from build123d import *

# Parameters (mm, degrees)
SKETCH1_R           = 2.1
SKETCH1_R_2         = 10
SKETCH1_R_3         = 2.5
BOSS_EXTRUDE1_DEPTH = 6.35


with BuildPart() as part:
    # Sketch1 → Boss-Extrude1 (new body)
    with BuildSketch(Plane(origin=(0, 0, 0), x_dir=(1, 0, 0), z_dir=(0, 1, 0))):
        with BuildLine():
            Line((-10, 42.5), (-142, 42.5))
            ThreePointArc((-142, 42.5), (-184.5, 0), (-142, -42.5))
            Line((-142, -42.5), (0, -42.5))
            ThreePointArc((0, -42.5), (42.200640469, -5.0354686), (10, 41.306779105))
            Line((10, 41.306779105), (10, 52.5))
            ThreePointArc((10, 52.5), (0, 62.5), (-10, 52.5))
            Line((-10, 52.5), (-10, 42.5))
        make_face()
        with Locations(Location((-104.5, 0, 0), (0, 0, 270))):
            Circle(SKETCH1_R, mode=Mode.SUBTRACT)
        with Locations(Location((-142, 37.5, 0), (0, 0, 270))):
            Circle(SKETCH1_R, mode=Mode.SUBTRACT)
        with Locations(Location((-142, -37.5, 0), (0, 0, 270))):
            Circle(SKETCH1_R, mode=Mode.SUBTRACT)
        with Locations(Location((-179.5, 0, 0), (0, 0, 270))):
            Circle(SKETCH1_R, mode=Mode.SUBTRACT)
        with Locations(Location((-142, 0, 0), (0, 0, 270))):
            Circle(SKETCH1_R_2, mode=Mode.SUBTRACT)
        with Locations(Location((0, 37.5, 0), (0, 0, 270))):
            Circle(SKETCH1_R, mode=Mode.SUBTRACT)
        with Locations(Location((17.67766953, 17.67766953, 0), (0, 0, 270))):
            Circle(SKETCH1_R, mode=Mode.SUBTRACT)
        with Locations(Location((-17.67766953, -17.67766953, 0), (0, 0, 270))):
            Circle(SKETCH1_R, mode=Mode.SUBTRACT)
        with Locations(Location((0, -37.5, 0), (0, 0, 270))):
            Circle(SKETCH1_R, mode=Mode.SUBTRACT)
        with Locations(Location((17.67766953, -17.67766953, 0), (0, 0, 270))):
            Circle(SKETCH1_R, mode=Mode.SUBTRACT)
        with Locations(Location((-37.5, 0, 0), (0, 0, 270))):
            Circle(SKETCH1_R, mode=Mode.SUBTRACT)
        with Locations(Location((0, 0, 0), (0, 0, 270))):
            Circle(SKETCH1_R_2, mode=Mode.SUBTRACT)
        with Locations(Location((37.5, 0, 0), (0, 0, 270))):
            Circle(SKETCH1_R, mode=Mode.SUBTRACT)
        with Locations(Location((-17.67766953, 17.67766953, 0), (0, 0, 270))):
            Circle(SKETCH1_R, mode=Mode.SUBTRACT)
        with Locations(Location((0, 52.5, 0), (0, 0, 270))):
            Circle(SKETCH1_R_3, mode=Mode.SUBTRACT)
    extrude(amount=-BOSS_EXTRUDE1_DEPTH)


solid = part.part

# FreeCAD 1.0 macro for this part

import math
import FreeCAD as App
import Part
import Sketcher

V = App.Vector

doc = App.newDocument("Part")
body = doc.addObject("PartDesign::Body", "Body")

sketch1 = doc.addObject("Sketcher::SketchObject", "Sketch")
body.addObject(sketch1)
sketch1.AttachmentSupport = (doc.XZ_Plane, [""])
sketch1.MapMode = "FlatFace"
sketch1.addGeometry([
    Part.LineSegment(V(-10, -42.5, 0), V(-142, -42.5, 0)),
    Part.ArcOfCircle(Part.Circle(V(-142, 0, 0), V(0, 0, 1), 42.5), math.radians(90), math.radians(270)),
    Part.LineSegment(V(-142, 42.5, 0), V(0, 42.5, 0)),
    Part.ArcOfCircle(Part.Circle(V(0, 0, 0), V(0, 0, 1), 42.5), math.radians(-76), math.radians(90)),
    Part.LineSegment(V(10, -41.3, 0), V(10, -52.5, 0)),
    Part.ArcOfCircle(Part.Circle(V(0, -52.5, 0), V(0, 0, 1), 10), math.radians(180), math.radians(360)),
    Part.LineSegment(V(-10, -52.5, 0), V(-10, -42.5, 0)),
    Part.Circle(V(-142, 37.5, 0), V(0, 0, 1), 2.1),
    Part.Circle(V(-179.5, 0, 0), V(0, 0, 1), 2.1),
    Part.Circle(V(-142, 0, 0), V(0, 0, 1), 10),
    Part.Circle(V(-104.5, 0, 0), V(0, 0, 1), 2.1),
    Part.Circle(V(-17.7, 17.7, 0), V(0, 0, 1), 2.1),
    Part.Circle(V(0, 37.5, 0), V(0, 0, 1), 2.1),
    Part.Circle(V(17.7, 17.7, 0), V(0, 0, 1), 2.1),
    Part.Circle(V(-37.5, 0, 0), V(0, 0, 1), 2.1),
    Part.Circle(V(0, 0, 0), V(0, 0, 1), 10),
    Part.Circle(V(37.5, 0, 0), V(0, 0, 1), 2.1),
    Part.Circle(V(-142, -37.5, 0), V(0, 0, 1), 2.1),
    Part.Circle(V(-17.7, -17.7, 0), V(0, 0, 1), 2.1),
    Part.Circle(V(17.7, -17.7, 0), V(0, 0, 1), 2.1),
    Part.Circle(V(0, -37.5, 0), V(0, 0, 1), 2.1),
    Part.Circle(V(0, -52.5, 0), V(0, 0, 1), 2.5),
], False)
sketch1.addConstraint([
    Sketcher.Constraint("Tangent", 0, 2, 1, 2),
    Sketcher.Constraint("Tangent", 1, 1, 2, 1),
    Sketcher.Constraint("Tangent", 2, 2, 3, 2),
    Sketcher.Constraint("Coincident", 3, 1, 4, 1),
    Sketcher.Constraint("Tangent", 4, 2, 5, 2),
    Sketcher.Constraint("Tangent", 5, 1, 6, 1),
    Sketcher.Constraint("Coincident", 6, 2, 0, 1),
    Sketcher.Constraint("Horizontal", 0),
    Sketcher.Constraint("Horizontal", 2),
    Sketcher.Constraint("Vertical", 4),
    Sketcher.Constraint("Vertical", 6),
    Sketcher.Constraint("Coincident", 3, 3, -1, 1),
    Sketcher.Constraint("Coincident", 15, 3, -1, 1),
    Sketcher.Constraint("Coincident", 9, 3, 1, 3),
    Sketcher.Constraint("Coincident", 21, 3, 5, 3),
    Sketcher.Constraint("Equal", 1, 3),
    Sketcher.Constraint("Equal", 7, 8),
    Sketcher.Constraint("Equal", 5, 9),
    Sketcher.Constraint("Equal", 8, 10),
    Sketcher.Constraint("Equal", 10, 11),
    Sketcher.Constraint("Equal", 11, 12),
    Sketcher.Constraint("Equal", 12, 13),
    Sketcher.Constraint("Equal", 13, 14),
    Sketcher.Constraint("Equal", 9, 15),
    Sketcher.Constraint("Equal", 14, 16),
    Sketcher.Constraint("Equal", 16, 17),
    Sketcher.Constraint("Equal", 17, 18),
    Sketcher.Constraint("Equal", 18, 19),
    Sketcher.Constraint("Equal", 19, 20),
    Sketcher.Constraint("Symmetric", 14, 3, 16, 3, -1, 1),
    Sketcher.Constraint("Symmetric", 13, 3, 18, 3, -1, 1),
    Sketcher.Constraint("Symmetric", 11, 3, 19, 3, -1, 1),
    Sketcher.Constraint("Symmetric", 12, 3, 20, 3, -1, 1),
    Sketcher.Constraint("Symmetric", 11, 3, 13, 3, -2),
    Sketcher.Constraint("Symmetric", 7, 3, 17, 3, -1),
    Sketcher.Constraint("PointOnObject", 5, 3, -2),
    Sketcher.Constraint("PointOnObject", 8, 3, -1),
    Sketcher.Constraint("PointOnObject", 10, 3, -1),
    Sketcher.Constraint("PointOnObject", 12, 3, -2),
    Sketcher.Constraint("PointOnObject", 14, 3, -1),
    Sketcher.Constraint("Horizontal", 7, 3, 12, 3),
    Sketcher.Constraint("Vertical", 1, 3, 7, 3),
    Sketcher.Constraint("Diameter", 9, 20.0),
    Sketcher.Constraint("Diameter", 21, 5.0),
    Sketcher.Constraint("Diameter", 7, 4.2),
    Sketcher.Constraint("Radius", 1, 42.5),
    Sketcher.Constraint("DistanceX", 0, 2, 0, 1, 132.0),
    Sketcher.Constraint("DistanceY", 6, 1, 6, 2, 10.0),
    Sketcher.Constraint("DistanceY", 5, 3, 7, 3, 90.0),
    Sketcher.Constraint("DistanceX", 8, 3, 10, 3, 75.0),
    Sketcher.Constraint("DistanceX", 8, 3, -1, 1, 179.5),
    Sketcher.Constraint("DistanceX", 14, 3, -1, 1, 37.5),
    Sketcher.Constraint("DistanceX", 11, 3, -1, 1, 17.67767),
    Sketcher.Constraint("DistanceY", -1, 1, 11, 3, 17.67767),
])
pad1 = doc.addObject("PartDesign::Pad", "Pad")
body.addObject(pad1)
pad1.Profile = sketch1
pad1.Length = 6.35

doc.recompute()
